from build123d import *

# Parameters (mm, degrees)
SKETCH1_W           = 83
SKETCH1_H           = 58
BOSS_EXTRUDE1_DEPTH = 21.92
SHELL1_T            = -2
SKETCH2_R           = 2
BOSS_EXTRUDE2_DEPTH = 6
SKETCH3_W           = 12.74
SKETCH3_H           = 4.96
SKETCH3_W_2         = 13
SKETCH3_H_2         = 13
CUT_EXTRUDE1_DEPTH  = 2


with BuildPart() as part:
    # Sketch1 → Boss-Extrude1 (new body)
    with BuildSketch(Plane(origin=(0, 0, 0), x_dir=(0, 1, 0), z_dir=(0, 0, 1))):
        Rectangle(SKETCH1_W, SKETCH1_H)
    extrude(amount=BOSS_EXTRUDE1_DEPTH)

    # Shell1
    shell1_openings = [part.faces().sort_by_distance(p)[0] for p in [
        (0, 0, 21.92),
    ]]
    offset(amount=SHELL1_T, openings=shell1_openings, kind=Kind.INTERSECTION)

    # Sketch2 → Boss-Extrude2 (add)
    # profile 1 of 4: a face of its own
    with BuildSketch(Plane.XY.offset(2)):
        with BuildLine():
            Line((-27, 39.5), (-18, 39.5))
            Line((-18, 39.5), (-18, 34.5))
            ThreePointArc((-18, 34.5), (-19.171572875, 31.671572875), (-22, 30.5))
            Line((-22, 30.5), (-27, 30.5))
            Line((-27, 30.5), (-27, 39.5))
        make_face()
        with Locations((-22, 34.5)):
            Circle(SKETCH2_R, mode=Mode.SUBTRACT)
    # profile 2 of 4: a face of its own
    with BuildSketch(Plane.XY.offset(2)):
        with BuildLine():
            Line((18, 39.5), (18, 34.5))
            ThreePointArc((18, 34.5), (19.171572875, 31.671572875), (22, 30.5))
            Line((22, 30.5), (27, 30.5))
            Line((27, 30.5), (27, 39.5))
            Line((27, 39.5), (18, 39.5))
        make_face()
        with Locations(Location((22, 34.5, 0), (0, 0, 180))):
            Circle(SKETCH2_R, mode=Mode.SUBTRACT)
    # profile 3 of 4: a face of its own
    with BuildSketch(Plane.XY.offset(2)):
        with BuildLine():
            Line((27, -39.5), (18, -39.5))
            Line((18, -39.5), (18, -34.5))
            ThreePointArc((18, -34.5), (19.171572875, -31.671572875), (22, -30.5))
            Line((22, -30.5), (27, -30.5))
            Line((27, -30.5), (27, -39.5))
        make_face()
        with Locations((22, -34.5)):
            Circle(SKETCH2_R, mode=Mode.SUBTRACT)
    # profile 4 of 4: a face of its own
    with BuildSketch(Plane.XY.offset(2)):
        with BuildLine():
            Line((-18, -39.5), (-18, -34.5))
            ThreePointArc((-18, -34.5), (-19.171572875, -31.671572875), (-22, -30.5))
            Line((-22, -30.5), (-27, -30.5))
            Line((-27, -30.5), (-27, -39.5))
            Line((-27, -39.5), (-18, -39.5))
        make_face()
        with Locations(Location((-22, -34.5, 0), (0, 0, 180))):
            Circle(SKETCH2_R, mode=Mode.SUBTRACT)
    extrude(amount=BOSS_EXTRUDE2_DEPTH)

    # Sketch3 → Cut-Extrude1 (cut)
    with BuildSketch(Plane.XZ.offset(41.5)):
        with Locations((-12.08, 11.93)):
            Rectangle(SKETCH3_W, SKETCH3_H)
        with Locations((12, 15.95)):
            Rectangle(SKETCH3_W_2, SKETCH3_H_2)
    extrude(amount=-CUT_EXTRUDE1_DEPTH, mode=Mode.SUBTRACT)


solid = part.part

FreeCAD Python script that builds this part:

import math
import FreeCAD as App
import Part
import Sketcher

V = App.Vector
Q = App.Units.Quantity


def faces_at(feature, points):
    """Names of the faces that lie closest to the given points."""
    faces = feature.Shape.Faces
    near = lambda p: min(range(len(faces)), key=lambda i: faces[i].distToShape(Part.Vertex(*p))[0])
    return sorted({f"Face{near(p) + 1}" for p in points})


def add_polygon(sketch, points):
    """Adds a closed chain of lines whose ends are joined by coincident constraints."""
    first, n = sketch.GeometryCount, len(points)
    for a, b in zip(points, points[1:] + points[:1]):
        sketch.addGeometry(Part.LineSegment(App.Vector(*a, 0), App.Vector(*b, 0)), False)
    for i in range(n):
        sketch.addConstraint(Sketcher.Constraint("Coincident", first + i, 2, first + (i + 1) % n, 1))

doc = App.newDocument("Part")
body = doc.addObject("PartDesign::Body", "Body")

# Sketch on XY plane
sketch1 = body.newObject("Sketcher::SketchObject", "Sketch")
sketch1.AttachmentSupport = (doc.getObject("XY_Plane"), [""])
sketch1.MapMode = "FlatFace"
add_polygon(sketch1, [(-29, -41.5), (29, -41.5), (29, 41.5), (-29, 41.5)])  # lines 0-3
sketch1.addConstraint([
    Sketcher.Constraint("Horizontal", 0),
    Sketcher.Constraint("Vertical", 1),
    Sketcher.Constraint("Horizontal", 2),
    Sketcher.Constraint("Vertical", 3),
    Sketcher.Constraint("Symmetric", 0, 2, 2, 2, -1, 1),
    Sketcher.Constraint("DistanceX", 0, 1, 0, 2, Q("58 mm")),
    Sketcher.Constraint("DistanceY", 1, 1, 1, 2, Q("83 mm")),
])
pad1 = body.newObject("PartDesign::Pad", "Pad")
pad1.Profile = sketch1
pad1.Length = 21.92
doc.recompute()

thickness = body.newObject("PartDesign::Thickness", "Thickness")
thickness.Base = (pad1, faces_at(pad1, [(0, 0, 21.92)]))
thickness.Value = 2
thickness.Reversed = True
thickness.Join = "Intersection"

# Sketch on XY plane
sketch2 = body.newObject("Sketcher::SketchObject", "Sketch001")
sketch2.AttachmentSupport = (doc.getObject("XY_Plane"), [""])
sketch2.MapMode = "FlatFace"
sketch2.AttachmentOffset = App.Placement(V(0, 0, 2), App.Rotation())
sketch2.addGeometry([
    Part.LineSegment(V(-18, 39.5, 0), V(-27, 39.5, 0)),  # 0
    Part.LineSegment(V(-27, 39.5, 0), V(-27, 30.5, 0)),  # 1
    Part.LineSegment(V(-27, 30.5, 0), V(-22, 30.5, 0)),  # 2
    Part.ArcOfCircle(Part.Circle(V(-22, 34.5, 0), V(0, 0, 1), 4), math.radians(-90), math.radians(0)),  # 3
    Part.LineSegment(V(-18, 34.5, 0), V(-18, 39.5, 0)),  # 4
    Part.Circle(V(-22, 34.5, 0), V(0, 0, 1), 2),  # 5
    Part.LineSegment(V(18, 39.5, 0), V(18, 34.5, 0)),  # 6
    Part.ArcOfCircle(Part.Circle(V(22, 34.5, 0), V(0, 0, 1), 4), math.radians(180), math.radians(270)),  # 7
    Part.LineSegment(V(22, 30.5, 0), V(27, 30.5, 0)),  # 8
    Part.LineSegment(V(27, 30.5, 0), V(27, 39.5, 0)),  # 9
    Part.LineSegment(V(27, 39.5, 0), V(18, 39.5, 0)),  # 10
    Part.Circle(V(22, 34.5, 0), V(0, 0, 1), 2),  # 11
    Part.LineSegment(V(18, -39.5, 0), V(27, -39.5, 0)),  # 12
    Part.LineSegment(V(27, -39.5, 0), V(27, -30.5, 0)),  # 13
    Part.LineSegment(V(27, -30.5, 0), V(22, -30.5, 0)),  # 14
    Part.ArcOfCircle(Part.Circle(V(22, -34.5, 0), V(0, 0, 1), 4), math.radians(90), math.radians(180)),  # 15
    Part.LineSegment(V(18, -34.5, 0), V(18, -39.5, 0)),  # 16
    Part.Circle(V(22, -34.5, 0), V(0, 0, 1), 2),  # 17
    Part.LineSegment(V(-18, -39.5, 0), V(-18, -34.5, 0)),  # 18
    Part.ArcOfCircle(Part.Circle(V(-22, -34.5, 0), V(0, 0, 1), 4), math.radians(0), math.radians(90)),  # 19
    Part.LineSegment(V(-22, -30.5, 0), V(-27, -30.5, 0)),  # 20
    Part.LineSegment(V(-27, -30.5, 0), V(-27, -39.5, 0)),  # 21
    Part.LineSegment(V(-27, -39.5, 0), V(-18, -39.5, 0)),  # 22
    Part.Circle(V(-22, -34.5, 0), V(0, 0, 1), 2),  # 23
], False)
sketch2.addConstraint([
    Sketcher.Constraint("Coincident", 0, 2, 1, 1),
    Sketcher.Constraint("Coincident", 1, 2, 2, 1),
    Sketcher.Constraint("Tangent", 2, 2, 3, 1),
    Sketcher.Constraint("Tangent", 3, 2, 4, 1),
    Sketcher.Constraint("Coincident", 4, 2, 0, 1),
    Sketcher.Constraint("Tangent", 6, 2, 7, 1),
    Sketcher.Constraint("Tangent", 7, 2, 8, 1),
    Sketcher.Constraint("Coincident", 8, 2, 9, 1),
    Sketcher.Constraint("Coincident", 9, 2, 10, 1),
    Sketcher.Constraint("Coincident", 10, 2, 6, 1),
    Sketcher.Constraint("Coincident", 12, 2, 13, 1),
    Sketcher.Constraint("Coincident", 13, 2, 14, 1),
    Sketcher.Constraint("Tangent", 14, 2, 15, 1),
    Sketcher.Constraint("Tangent", 15, 2, 16, 1),
    Sketcher.Constraint("Coincident", 16, 2, 12, 1),
    Sketcher.Constraint("Tangent", 18, 2, 19, 1),
    Sketcher.Constraint("Tangent", 19, 2, 20, 1),
    Sketcher.Constraint("Coincident", 20, 2, 21, 1),
    Sketcher.Constraint("Coincident", 21, 2, 22, 1),
    Sketcher.Constraint("Coincident", 22, 2, 18, 1),
    Sketcher.Constraint("Horizontal", 0),
    Sketcher.Constraint("Vertical", 1),
    Sketcher.Constraint("Horizontal", 2),
    Sketcher.Constraint("Vertical", 4),
    Sketcher.Constraint("Vertical", 6),
    Sketcher.Constraint("Horizontal", 8),
    Sketcher.Constraint("Vertical", 9),
    Sketcher.Constraint("Horizontal", 10),
    Sketcher.Constraint("Horizontal", 12),
    Sketcher.Constraint("Vertical", 13),
    Sketcher.Constraint("Horizontal", 14),
    Sketcher.Constraint("Vertical", 16),
    Sketcher.Constraint("Vertical", 18),
    Sketcher.Constraint("Horizontal", 20),
    Sketcher.Constraint("Vertical", 21),
    Sketcher.Constraint("Horizontal", 22),
    Sketcher.Constraint("Coincident", 5, 3, 3, 3),
    Sketcher.Constraint("Coincident", 11, 3, 7, 3),
    Sketcher.Constraint("Coincident", 17, 3, 15, 3),
    Sketcher.Constraint("Coincident", 23, 3, 19, 3),
    Sketcher.Constraint("Equal", 3, 7),
    Sketcher.Constraint("Equal", 5, 11),
    Sketcher.Constraint("Equal", 7, 15),
    Sketcher.Constraint("Equal", 11, 17),
    Sketcher.Constraint("Equal", 15, 19),
    Sketcher.Constraint("Equal", 17, 23),
    Sketcher.Constraint("Symmetric", 3, 3, 15, 3, -1, 1),
    Sketcher.Constraint("Symmetric", 7, 3, 19, 3, -1, 1),
    Sketcher.Constraint("Symmetric", 0, 2, 12, 2, -1, 1),
    Sketcher.Constraint("Symmetric", 9, 2, 21, 2, -1, 1),
    Sketcher.Constraint("Symmetric", 3, 3, 7, 3, -2),
    Sketcher.Constraint("Symmetric", 0, 2, 9, 2, -2),
    Sketcher.Constraint("Equal", 22, 1),
    Sketcher.Constraint("Diameter", 5, Q("4 mm")),
    Sketcher.Constraint("Radius", 3, Q("4 mm")),
    Sketcher.Constraint("DistanceX", 0, 2, 0, 1, Q("9 mm")),
    Sketcher.Constraint("DistanceX", 3, 3, -1, 1, Q("22 mm")),
    Sketcher.Constraint("DistanceY", 15, 3, 7, 3, Q("69 mm")),
])
pad2 = body.newObject("PartDesign::Pad", "Pad001")
pad2.Profile = sketch2
pad2.Length = 6

# Sketch on XZ plane
sketch3 = body.newObject("Sketcher::SketchObject", "Sketch002")
sketch3.AttachmentSupport = (doc.getObject("XZ_Plane"), [""])
sketch3.MapMode = "FlatFace"
sketch3.AttachmentOffset = App.Placement(V(0, 0, 41.5), App.Rotation())
add_polygon(sketch3, [(-18.45, 14.41), (-18.45, 9.45), (-5.71, 9.45), (-5.71, 14.41)])  # lines 0-3
add_polygon(sketch3, [(5.5, 22.45), (5.5, 9.45), (18.5, 9.45), (18.5, 22.45)])  # lines 4-7
sketch3.addConstraint([
    Sketcher.Constraint("Vertical", 0),
    Sketcher.Constraint("Horizontal", 1),
    Sketcher.Constraint("Vertical", 2),
    Sketcher.Constraint("Horizontal", 3),
    Sketcher.Constraint("Vertical", 4),
    Sketcher.Constraint("Horizontal", 5),
    Sketcher.Constraint("Vertical", 6),
    Sketcher.Constraint("Horizontal", 7),
    Sketcher.Constraint("Horizontal", 1, 2, 4, 2),
    Sketcher.Constraint("Equal", 7, 4),
    Sketcher.Constraint("DistanceX", 5, 1, 5, 2, Q("13 mm")),
    Sketcher.Constraint("DistanceX", 1, 1, 1, 2, Q("12.74 mm")),
    Sketcher.Constraint("DistanceY", 0, 2, 0, 1, Q("4.96 mm")),
    Sketcher.Constraint("DistanceX", -1, 1, 4, 2, Q("5.5 mm")),
    Sketcher.Constraint("DistanceX", 0, 2, -1, 1, Q("18.45 mm")),
    Sketcher.Constraint("DistanceY", -1, 1, 0, 2, Q("9.45 mm")),
])
pocket1 = body.newObject("PartDesign::Pocket", "Pocket")
pocket1.Profile = sketch3
pocket1.Length = 2

doc.recompute()
